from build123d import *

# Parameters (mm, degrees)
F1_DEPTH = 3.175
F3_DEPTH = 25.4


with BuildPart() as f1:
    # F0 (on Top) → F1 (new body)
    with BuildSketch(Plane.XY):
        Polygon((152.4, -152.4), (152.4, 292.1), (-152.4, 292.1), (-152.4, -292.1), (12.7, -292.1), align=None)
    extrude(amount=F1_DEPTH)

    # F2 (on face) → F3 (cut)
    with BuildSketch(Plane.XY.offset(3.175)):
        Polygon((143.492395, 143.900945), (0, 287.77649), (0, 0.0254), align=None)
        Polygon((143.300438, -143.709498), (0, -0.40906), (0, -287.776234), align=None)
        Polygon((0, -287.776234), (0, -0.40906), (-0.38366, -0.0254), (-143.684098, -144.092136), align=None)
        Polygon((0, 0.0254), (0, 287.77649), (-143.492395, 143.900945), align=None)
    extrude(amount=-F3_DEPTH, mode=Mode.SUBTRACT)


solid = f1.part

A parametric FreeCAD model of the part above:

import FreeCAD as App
import Part
import Sketcher

V = App.Vector
Q = App.Units.Quantity


def add_polygon(sketch, points):
    """Adds a closed chain of lines whose ends are joined by coincident constraints."""
    first, n = sketch.GeometryCount, len(points)
    for a, b in zip(points, points[1:] + points[:1]):
        sketch.addGeometry(Part.LineSegment(App.Vector(*a, 0), App.Vector(*b, 0)), False)
    for i in range(n):
        sketch.addConstraint(Sketcher.Constraint("Coincident", first + i, 2, first + (i + 1) % n, 1))

doc = App.newDocument("Part")
params = doc.addObject("Spreadsheet::Sheet", "Params")
for row, (alias, value) in enumerate([
    ("sketch1_width", "12 in"),
    ("sketch1_height", "23 in"),
    ("sketch1_width2", "6.5 in"),
    ("sketch1_height2", "17.5 in"),
    ("pad1_length", "0.125 in"),
    ("sketch2_length", "8 in"),
    ("pocket1_length", "1 in"),
], start=1):
    params.set(f"A{row}", alias)
    params.set(f"B{row}", "=" + value)
    params.setAlias(f"B{row}", alias)

body = doc.addObject("PartDesign::Body", "Body")

sketch1 = body.newObject("Sketcher::SketchObject", "Sketch")
sketch1.AttachmentSupport = (doc.getObject("XY_Plane"), [""])
sketch1.MapMode = "FlatFace"
add_polygon(sketch1, [(152, -152), (152, 292), (-152, 292), (-152, -292), (13, -292)])
sketch1.addConstraint(Sketcher.Constraint("Vertical", 0))
sketch1.addConstraint(Sketcher.Constraint("Horizontal", 1))
sketch1.addConstraint(Sketcher.Constraint("Vertical", 2))
sketch1.addConstraint(Sketcher.Constraint("Horizontal", 3))
sketch1.addConstraint(Sketcher.Constraint("Symmetric", 0, 2, 2, 2, -1, 1))
sketch1.addConstraint(Sketcher.Constraint("DistanceX", 1, 2, 1, 1, Q("12 in")))
sketch1.addConstraint(Sketcher.Constraint("DistanceY", 2, 2, 2, 1, Q("23 in")))
sketch1.addConstraint(Sketcher.Constraint("DistanceX", 3, 1, 3, 2, Q("6.5 in")))
sketch1.addConstraint(Sketcher.Constraint("DistanceY", 0, 1, 0, 2, Q("17.5 in")))
sketch1.setExpression("Constraints[10]", "Params.sketch1_width")
sketch1.setExpression("Constraints[11]", "Params.sketch1_height")
sketch1.setExpression("Constraints[12]", "Params.sketch1_width2")
sketch1.setExpression("Constraints[13]", "Params.sketch1_height2")
pad1 = body.newObject("PartDesign::Pad", "Pad")
pad1.Profile = sketch1
pad1.setExpression("Length", "Params.pad1_length")

sketch2 = body.newObject("Sketcher::SketchObject", "Sketch001")
sketch2.AttachmentSupport = (doc.getObject("XY_Plane"), [""])
sketch2.MapMode = "FlatFace"
sketch2.AttachmentOffset = App.Placement(V(0, 0, 0.125 * 25.4), App.Rotation())
add_polygon(sketch2, [(143, 144), (0, 288), (-143, 144), (0, 0)])
add_polygon(sketch2, [(143, -144), (0, 0), (-144, -144), (0, -288)])
sketch2.addConstraint(Sketcher.Constraint("Symmetric", 1, 2, 3, 2, -2))
sketch2.addConstraint(Sketcher.Constraint("PointOnObject", 0, 2, -2))
sketch2.addConstraint(Sketcher.Constraint("PointOnObject", 2, 2, -2))
sketch2.addConstraint(Sketcher.Constraint("PointOnObject", 6, 2, -2))
sketch2.addConstraint(Sketcher.Constraint("Parallel", 0, 2))
sketch2.addConstraint(Sketcher.Constraint("Parallel", 4, 6))
sketch2.addConstraint(Sketcher.Constraint("Parallel", 5, 7))
sketch2.addConstraint(Sketcher.Constraint("Equal", 3, 4))
sketch2.addConstraint(Sketcher.Constraint("Equal", 4, 5))
sketch2.addConstraint(Sketcher.Constraint("Distance", 0, Q("8 in")))
sketch2.addConstraint(Sketcher.Constraint("Angle", 4, Q("135 deg")))
sketch2.addConstraint(Sketcher.Constraint("DistanceY", -1, 1, 2, 2, Q("0.001 in")))
sketch2.addConstraint(Sketcher.Constraint("DistanceY", 4, 2, -1, 1, Q("0.001 in")))
sketch2.addConstraint(Sketcher.Constraint("DistanceY", -1, 1, 0, 2, 287.77649))
sketch2.addConstraint(Sketcher.Constraint("DistanceX", 4, 2, -1, 1, 0.38366))
sketch2.setExpression("Constraints[17]", "Params.sketch2_length")
pocket1 = body.newObject("PartDesign::Pocket", "Pocket")
pocket1.Profile = sketch2
pocket1.setExpression("Length", "Params.pocket1_length")

doc.recompute()
